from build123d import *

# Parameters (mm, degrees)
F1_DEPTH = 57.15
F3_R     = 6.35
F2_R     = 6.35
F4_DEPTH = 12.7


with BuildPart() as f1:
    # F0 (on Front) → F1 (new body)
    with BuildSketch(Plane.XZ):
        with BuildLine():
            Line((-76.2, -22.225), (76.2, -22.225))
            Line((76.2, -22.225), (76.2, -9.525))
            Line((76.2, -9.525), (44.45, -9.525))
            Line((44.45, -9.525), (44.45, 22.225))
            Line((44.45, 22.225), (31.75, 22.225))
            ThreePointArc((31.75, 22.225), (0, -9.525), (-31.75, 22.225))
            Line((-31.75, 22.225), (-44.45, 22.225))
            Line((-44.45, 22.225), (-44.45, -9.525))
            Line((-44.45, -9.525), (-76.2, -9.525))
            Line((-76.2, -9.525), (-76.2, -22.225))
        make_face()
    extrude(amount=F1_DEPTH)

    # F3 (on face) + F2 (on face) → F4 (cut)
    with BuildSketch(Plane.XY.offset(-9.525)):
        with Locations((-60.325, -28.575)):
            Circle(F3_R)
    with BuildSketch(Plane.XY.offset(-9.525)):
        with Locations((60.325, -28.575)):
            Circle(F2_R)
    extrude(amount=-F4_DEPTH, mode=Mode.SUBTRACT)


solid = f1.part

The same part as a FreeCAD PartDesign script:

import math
import FreeCAD as App
import Part
import Sketcher
from FreeCAD import Vector
Q = App.Units.Quantity

doc = App.newDocument("Part")
params = doc.addObject("Spreadsheet::Sheet", "Params")
for row, (alias, value) in enumerate([
    ("sketch1_width", "6 in"),
    ("sketch1_radius", "1.25 in"),
    ("sketch1_width2", "0.5 in"),
    ("pad1_length", "2.25 in"),
    ("sketch2_diameter", "0.5 in"),
    ("pocket1_length", "0.5 in"),
], start=1):
    params.set(f"A{row}", alias)
    params.set(f"B{row}", "=" + value)
    params.setAlias(f"B{row}", alias)

body = doc.addObject("PartDesign::Body", "Body")

# Sketch on XZ plane
sketch1 = body.newObject("Sketcher::SketchObject", "Sketch")
sketch1.AttachmentSupport = (doc.getObject("XZ_Plane"), [""])
sketch1.MapMode = "FlatFace"
sketch1.addGeometry([
    Part.LineSegment(Vector(-76, -22, 0), Vector(76, -22, 0)),  # 0
    Part.LineSegment(Vector(76, -22, 0), Vector(76, -10, 0)),  # 1
    Part.LineSegment(Vector(76, -10, 0), Vector(44, -10, 0)),  # 2
    Part.LineSegment(Vector(44, -10, 0), Vector(44, 22, 0)),  # 3
    Part.LineSegment(Vector(44, 22, 0), Vector(32, 22, 0)),  # 4
    Part.ArcOfCircle(Part.Circle(Vector(0, 22, 0), Vector(0, 0, 1), 32), math.radians(180), math.radians(360)),  # 5
    Part.LineSegment(Vector(-32, 22, 0), Vector(-44, 22, 0)),  # 6
    Part.LineSegment(Vector(-44, 22, 0), Vector(-44, -10, 0)),  # 7
    Part.LineSegment(Vector(-44, -10, 0), Vector(-76, -10, 0)),  # 8
    Part.LineSegment(Vector(-76, -10, 0), Vector(-76, -22, 0)),  # 9
], False)
sketch1.addConstraint([
    Sketcher.Constraint("Coincident", 0, 2, 1, 1),
    Sketcher.Constraint("Coincident", 1, 2, 2, 1),
    Sketcher.Constraint("Coincident", 2, 2, 3, 1),
    Sketcher.Constraint("Coincident", 3, 2, 4, 1),
    Sketcher.Constraint("Coincident", 4, 2, 5, 2),
    Sketcher.Constraint("Coincident", 5, 1, 6, 1),
    Sketcher.Constraint("Coincident", 6, 2, 7, 1),
    Sketcher.Constraint("Coincident", 7, 2, 8, 1),
    Sketcher.Constraint("Coincident", 8, 2, 9, 1),
    Sketcher.Constraint("Coincident", 9, 2, 0, 1),
    Sketcher.Constraint("Horizontal", 0),
    Sketcher.Constraint("Vertical", 1),
    Sketcher.Constraint("Horizontal", 2),
    Sketcher.Constraint("Vertical", 3),
    Sketcher.Constraint("Horizontal", 4),
    Sketcher.Constraint("Horizontal", 6),
    Sketcher.Constraint("Vertical", 7),
    Sketcher.Constraint("Horizontal", 8),
    Sketcher.Constraint("Vertical", 9),
    Sketcher.Constraint("Symmetric", 4, 2, 5, 1, -2),
    Sketcher.Constraint("Symmetric", 2, 2, 7, 2, -2),
    Sketcher.Constraint("Horizontal", 5, 3, 3, 2),
    Sketcher.Constraint("Equal", 2, 8),
    Sketcher.Constraint("Equal", 6, 1),
    Sketcher.Constraint("Equal", 8, 3),
    Sketcher.Constraint("DistanceX", 0, 1, 0, 2, Q("6 in")),
    Sketcher.Constraint("Radius", 5, Q("1.25 in")),
    Sketcher.Constraint("DistanceX", 4, 2, 4, 1, Q("0.5 in")),
    Sketcher.Constraint("DistanceY", -1, 1, 5, 3, Q("0.875 in")),
])
sketch1.setExpression("Constraints[25]", "Params.sketch1_width")
sketch1.setExpression("Constraints[26]", "Params.sketch1_radius")
sketch1.setExpression("Constraints[27]", "Params.sketch1_width2")
pad1 = body.newObject("PartDesign::Pad", "Pad")
pad1.Profile = sketch1
pad1.setExpression("Length", "Params.pad1_length")

# Sketch on XY plane
sketch2 = body.newObject("Sketcher::SketchObject", "Sketch001")
sketch2.AttachmentSupport = (doc.getObject("XY_Plane"), [""])
sketch2.MapMode = "FlatFace"
sketch2.AttachmentOffset = App.Placement(Vector(0, 0, -0.375 * 25.4), App.Rotation())
sketch2.addGeometry([
    Part.Circle(Vector(-60, -29, 0), Vector(0, 0, 1), 6),
    Part.Circle(Vector(60, -29, 0), Vector(0, 0, 1), 6),
], False)
sketch2.addConstraint([
    Sketcher.Constraint("Equal", 0, 1),
    Sketcher.Constraint("Symmetric", 0, 3, 1, 3, -2),
    Sketcher.Constraint("Diameter", 0, Q("0.5 in")),
    Sketcher.Constraint("DistanceX", 0, 3, 1, 3, Q("4.75 in")),
    Sketcher.Constraint("DistanceY", 0, 3, -1, 1, Q("1.125 in")),
])
sketch2.setExpression("Constraints[2]", "Params.sketch2_diameter")
pocket1 = body.newObject("PartDesign::Pocket", "Pocket")
pocket1.Profile = sketch2
pocket1.setExpression("Length", "Params.pocket1_length")

doc.recompute()
